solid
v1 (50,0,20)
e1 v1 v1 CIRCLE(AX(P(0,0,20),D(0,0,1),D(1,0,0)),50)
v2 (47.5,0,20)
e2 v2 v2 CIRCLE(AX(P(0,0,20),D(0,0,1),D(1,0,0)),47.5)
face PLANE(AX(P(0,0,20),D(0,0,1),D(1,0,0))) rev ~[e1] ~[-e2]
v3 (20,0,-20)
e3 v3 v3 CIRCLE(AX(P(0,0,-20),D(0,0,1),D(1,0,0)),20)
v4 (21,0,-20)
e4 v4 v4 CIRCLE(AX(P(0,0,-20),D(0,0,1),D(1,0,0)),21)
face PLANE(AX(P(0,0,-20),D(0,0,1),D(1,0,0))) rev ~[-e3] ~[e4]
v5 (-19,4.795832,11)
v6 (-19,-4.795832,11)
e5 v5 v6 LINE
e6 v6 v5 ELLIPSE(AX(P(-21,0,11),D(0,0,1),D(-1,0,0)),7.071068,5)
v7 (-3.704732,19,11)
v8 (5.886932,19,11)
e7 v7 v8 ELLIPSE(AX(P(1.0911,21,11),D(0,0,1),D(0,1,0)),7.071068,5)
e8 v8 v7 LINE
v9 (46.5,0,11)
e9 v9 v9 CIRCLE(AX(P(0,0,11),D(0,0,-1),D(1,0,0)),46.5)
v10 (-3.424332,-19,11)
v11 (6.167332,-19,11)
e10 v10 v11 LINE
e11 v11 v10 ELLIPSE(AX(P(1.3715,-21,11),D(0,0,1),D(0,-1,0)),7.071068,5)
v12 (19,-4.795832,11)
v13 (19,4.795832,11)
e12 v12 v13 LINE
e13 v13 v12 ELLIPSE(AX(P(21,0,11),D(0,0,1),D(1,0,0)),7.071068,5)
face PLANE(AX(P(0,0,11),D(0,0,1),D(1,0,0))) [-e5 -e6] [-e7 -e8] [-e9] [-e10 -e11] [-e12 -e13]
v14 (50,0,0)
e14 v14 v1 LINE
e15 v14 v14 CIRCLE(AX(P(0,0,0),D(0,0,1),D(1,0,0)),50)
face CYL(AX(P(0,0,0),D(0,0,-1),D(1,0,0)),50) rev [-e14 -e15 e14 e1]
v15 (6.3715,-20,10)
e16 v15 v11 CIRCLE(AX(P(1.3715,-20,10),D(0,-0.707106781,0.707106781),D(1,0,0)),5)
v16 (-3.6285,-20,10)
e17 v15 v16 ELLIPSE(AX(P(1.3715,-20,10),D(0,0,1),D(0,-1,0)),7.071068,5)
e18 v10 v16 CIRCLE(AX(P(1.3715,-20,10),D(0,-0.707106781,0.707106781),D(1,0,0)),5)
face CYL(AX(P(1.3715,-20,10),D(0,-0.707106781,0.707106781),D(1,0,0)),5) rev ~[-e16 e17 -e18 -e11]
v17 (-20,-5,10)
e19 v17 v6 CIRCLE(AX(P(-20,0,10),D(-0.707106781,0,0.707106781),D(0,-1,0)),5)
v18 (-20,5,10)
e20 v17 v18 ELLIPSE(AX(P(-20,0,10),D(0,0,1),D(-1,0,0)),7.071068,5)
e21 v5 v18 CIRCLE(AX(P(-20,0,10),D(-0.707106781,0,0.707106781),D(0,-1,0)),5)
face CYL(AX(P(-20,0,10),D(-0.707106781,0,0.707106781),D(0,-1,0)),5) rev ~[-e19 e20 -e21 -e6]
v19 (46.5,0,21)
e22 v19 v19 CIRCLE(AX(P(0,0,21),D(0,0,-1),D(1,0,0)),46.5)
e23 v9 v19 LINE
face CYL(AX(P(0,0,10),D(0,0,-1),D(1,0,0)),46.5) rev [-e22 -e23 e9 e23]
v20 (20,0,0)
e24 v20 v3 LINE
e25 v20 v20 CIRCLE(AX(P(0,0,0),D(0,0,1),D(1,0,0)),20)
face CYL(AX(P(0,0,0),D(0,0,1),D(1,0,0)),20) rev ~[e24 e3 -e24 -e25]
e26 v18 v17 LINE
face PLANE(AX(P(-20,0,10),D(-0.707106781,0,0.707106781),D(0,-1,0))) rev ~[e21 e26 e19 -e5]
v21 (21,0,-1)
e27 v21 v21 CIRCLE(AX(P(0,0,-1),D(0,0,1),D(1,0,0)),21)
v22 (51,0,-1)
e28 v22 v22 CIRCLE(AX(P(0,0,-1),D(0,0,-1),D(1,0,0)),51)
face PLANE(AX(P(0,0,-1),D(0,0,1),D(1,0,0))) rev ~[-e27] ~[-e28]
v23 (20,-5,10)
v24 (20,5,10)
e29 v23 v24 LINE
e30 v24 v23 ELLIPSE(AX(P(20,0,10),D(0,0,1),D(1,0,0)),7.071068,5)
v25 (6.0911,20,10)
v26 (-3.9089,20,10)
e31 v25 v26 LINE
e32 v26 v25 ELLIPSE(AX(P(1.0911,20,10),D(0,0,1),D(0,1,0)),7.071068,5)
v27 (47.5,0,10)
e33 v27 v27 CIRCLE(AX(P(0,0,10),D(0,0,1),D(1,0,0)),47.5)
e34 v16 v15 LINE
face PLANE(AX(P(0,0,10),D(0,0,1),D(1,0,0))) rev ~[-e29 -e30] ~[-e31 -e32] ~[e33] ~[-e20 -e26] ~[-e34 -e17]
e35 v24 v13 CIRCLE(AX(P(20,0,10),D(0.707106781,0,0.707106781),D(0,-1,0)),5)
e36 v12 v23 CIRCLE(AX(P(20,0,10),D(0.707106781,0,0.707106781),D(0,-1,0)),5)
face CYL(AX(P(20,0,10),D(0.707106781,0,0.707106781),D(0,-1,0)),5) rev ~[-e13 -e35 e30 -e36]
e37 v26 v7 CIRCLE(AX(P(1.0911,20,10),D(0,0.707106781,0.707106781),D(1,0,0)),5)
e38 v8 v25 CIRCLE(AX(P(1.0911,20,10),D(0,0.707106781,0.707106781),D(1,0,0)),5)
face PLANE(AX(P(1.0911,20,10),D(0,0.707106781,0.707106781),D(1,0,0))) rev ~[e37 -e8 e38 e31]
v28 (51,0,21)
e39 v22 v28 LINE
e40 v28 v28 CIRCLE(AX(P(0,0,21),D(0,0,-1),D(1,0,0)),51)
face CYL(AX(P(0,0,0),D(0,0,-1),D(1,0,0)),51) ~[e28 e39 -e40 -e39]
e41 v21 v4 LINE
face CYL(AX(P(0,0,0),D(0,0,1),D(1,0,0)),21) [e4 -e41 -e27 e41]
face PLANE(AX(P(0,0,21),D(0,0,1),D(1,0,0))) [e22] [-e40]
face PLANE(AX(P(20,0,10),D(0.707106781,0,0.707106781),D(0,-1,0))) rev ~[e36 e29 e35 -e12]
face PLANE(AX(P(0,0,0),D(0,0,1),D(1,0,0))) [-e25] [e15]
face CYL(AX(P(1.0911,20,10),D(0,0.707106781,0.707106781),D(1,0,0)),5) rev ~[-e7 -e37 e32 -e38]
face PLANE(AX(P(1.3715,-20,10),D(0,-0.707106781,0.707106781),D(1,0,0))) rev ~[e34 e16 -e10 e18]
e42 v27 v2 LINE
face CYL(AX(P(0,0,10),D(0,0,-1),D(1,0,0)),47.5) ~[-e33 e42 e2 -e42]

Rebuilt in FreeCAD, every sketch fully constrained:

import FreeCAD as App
import Part
import Sketcher
from FreeCAD import Vector


def faces_at(feature, points):
    """Names of the faces that lie closest to the given points."""
    faces = feature.Shape.Faces
    near = lambda p: min(range(len(faces)), key=lambda i: faces[i].distToShape(Part.Vertex(*p))[0])
    return sorted({f"Face{near(p) + 1}" for p in points})

doc = App.newDocument("Part")
params = doc.addObject("Spreadsheet::Sheet", "Params")
for row, (alias, value) in enumerate([
    ("sketch1_diameter", "100 mm"),
    ("pad1_length", "20 mm"),
    ("sketch2_diameter", "95 mm"),
    ("pocket1_length", "10 mm"),
    ("sketch3_diameter", "40 mm"),
    ("pad2_length", "20 mm"),
    ("thickness_wall", "1 mm"),
    ("sketch4_diameter", "10 mm"),
    ("pocket2_length", "10 mm"),
    ("sketch5_diameter", "10 mm"),
    ("pocket3_length", "30 mm"),
    ("sketch6_diameter", "10 mm"),
    ("pocket4_length", "20 mm"),
    ("sketch7_diameter", "10 mm"),
    ("pocket5_length", "10 mm"),
], start=1):
    params.set(f"A{row}", alias)
    params.set(f"B{row}", "=" + value)
    params.setAlias(f"B{row}", alias)

body = doc.addObject("PartDesign::Body", "Body")

# Sketch on XY plane
sketch1 = body.newObject("Sketcher::SketchObject", "Sketch")
sketch1.AttachmentSupport = (doc.getObject("XY_Plane"), [""])
sketch1.MapMode = "FlatFace"
sketch1.addGeometry(Part.Circle(Vector(0, 0, 0), Vector(0, 0, 1), 50), False)
sketch1.addConstraint([
    Sketcher.Constraint("Coincident", 0, 3, -1, 1),
    Sketcher.Constraint("Diameter", 0, 100.0),
])
sketch1.setExpression("Constraints[1]", "Params.sketch1_diameter")
pad1 = body.newObject("PartDesign::Pad", "Pad")
pad1.Profile = sketch1
pad1.setExpression("Length", "Params.pad1_length")

# Sketch on XY plane
sketch2 = body.newObject("Sketcher::SketchObject", "Sketch001")
sketch2.AttachmentSupport = (doc.getObject("XY_Plane"), [""])
sketch2.MapMode = "FlatFace"
sketch2.AttachmentOffset = App.Placement(Vector(0, 0, 10), App.Rotation())
sketch2.addGeometry(Part.Circle(Vector(0, 0, 0), Vector(0, 0, 1), 48), False)
sketch2.addConstraint([
    Sketcher.Constraint("Coincident", 0, 3, -1, 1),
    Sketcher.Constraint("Diameter", 0, 95.0),
])
sketch2.setExpression("Constraints[1]", "Params.sketch2_diameter")
pocket1 = body.newObject("PartDesign::Pocket", "Pocket")
pocket1.Profile = sketch2
pocket1.setExpression("Length", "Params.pocket1_length")
pocket1.Reversed = True

# Sketch on XY plane
sketch3 = body.newObject("Sketcher::SketchObject", "Sketch002")
sketch3.AttachmentSupport = (doc.getObject("XY_Plane"), [""])
sketch3.MapMode = "FlatFace"
sketch3.addGeometry(Part.Circle(Vector(0, 0, 0), Vector(0, 0, 1), 20), False)
sketch3.addConstraint([
    Sketcher.Constraint("Coincident", 0, 3, -1, 1),
    Sketcher.Constraint("Diameter", 0, 40.0),
])
sketch3.setExpression("Constraints[1]", "Params.sketch3_diameter")
pad2 = body.newObject("PartDesign::Pad", "Pad001")
pad2.Profile = sketch3
pad2.setExpression("Length", "Params.pad2_length")
pad2.Reversed = True
doc.recompute()

thickness = body.newObject("PartDesign::Thickness", "Thickness")
thickness.Base = (pad2, faces_at(pad2, [(6.37, -1.965, -20)]))
thickness.setExpression("Value", "Params.thickness_wall")
thickness.Reversed = False
thickness.Join = "Intersection"

# Sketch on an angled plane
sketch4 = body.newObject("Sketcher::SketchObject", "Sketch003")
sketch4.Placement = App.Placement(Vector(-20, 0, 10), App.Rotation(Vector(0, -1, 0), Vector(0.707106781, 0, 0.707106781), Vector(-0.707106781, 0, 0.707106781), "ZXY"))
sketch4.addGeometry(Part.Circle(Vector(0, 0, 0), Vector(0, 0, 1), 5), False)
sketch4.addConstraint([
    Sketcher.Constraint("Coincident", 0, 3, -1, 1),
    Sketcher.Constraint("Diameter", 0, 10.0),
])
sketch4.setExpression("Constraints[1]", "Params.sketch4_diameter")
pocket2 = body.newObject("PartDesign::Pocket", "Pocket001")
pocket2.Profile = sketch4
pocket2.setExpression("Length", "Params.pocket2_length")

# Sketch on an angled plane
sketch5 = body.newObject("Sketcher::SketchObject", "Sketch004")
sketch5.Placement = App.Placement(Vector(1.3715, -20, 10), App.Rotation(Vector(1, 0, 0), Vector(0, 0.707106781, 0.707106781), Vector(0, -0.707106781, 0.707106781), "ZXY"))
sketch5.addGeometry(Part.Circle(Vector(0, 0, 0), Vector(0, 0, 1), 5), False)
sketch5.addConstraint([
    Sketcher.Constraint("Coincident", 0, 3, -1, 1),
    Sketcher.Constraint("Diameter", 0, 10.0),
])
sketch5.setExpression("Constraints[1]", "Params.sketch5_diameter")
pocket3 = body.newObject("PartDesign::Pocket", "Pocket002")
pocket3.Profile = sketch5
pocket3.setExpression("Length", "Params.pocket3_length")

# Sketch on an angled plane
sketch6 = body.newObject("Sketcher::SketchObject", "Sketch005")
sketch6.Placement = App.Placement(Vector(20, 0, 10), App.Rotation(Vector(0, -1, 0), Vector(0.707106781, 0, -0.707106781), Vector(0.707106781, 0, 0.707106781), "ZXY"))
sketch6.addGeometry(Part.Circle(Vector(0, 0, 0), Vector(0, 0, 1), 5), False)
sketch6.addConstraint([
    Sketcher.Constraint("Coincident", 0, 3, -1, 1),
    Sketcher.Constraint("Diameter", 0, 10.0),
])
sketch6.setExpression("Constraints[1]", "Params.sketch6_diameter")
pocket4 = body.newObject("PartDesign::Pocket", "Pocket003")
pocket4.Profile = sketch6
pocket4.setExpression("Length", "Params.pocket4_length")

# Sketch on an angled plane
sketch7 = body.newObject("Sketcher::SketchObject", "Sketch006")
sketch7.Placement = App.Placement(Vector(1.0911, 20, 10), App.Rotation(Vector(1, 0, 0), Vector(0, 0.707106781, -0.707106781), Vector(0, 0.707106781, 0.707106781), "ZXY"))
sketch7.addGeometry(Part.Circle(Vector(0, 0, 0), Vector(0, 0, 1), 5), False)
sketch7.addConstraint([
    Sketcher.Constraint("Coincident", 0, 3, -1, 1),
    Sketcher.Constraint("Diameter", 0, 10.0),
])
sketch7.setExpression("Constraints[1]", "Params.sketch7_diameter")
pocket5 = body.newObject("PartDesign::Pocket", "Pocket004")
pocket5.Profile = sketch7
pocket5.setExpression("Length", "Params.pocket5_length")

doc.recompute()
